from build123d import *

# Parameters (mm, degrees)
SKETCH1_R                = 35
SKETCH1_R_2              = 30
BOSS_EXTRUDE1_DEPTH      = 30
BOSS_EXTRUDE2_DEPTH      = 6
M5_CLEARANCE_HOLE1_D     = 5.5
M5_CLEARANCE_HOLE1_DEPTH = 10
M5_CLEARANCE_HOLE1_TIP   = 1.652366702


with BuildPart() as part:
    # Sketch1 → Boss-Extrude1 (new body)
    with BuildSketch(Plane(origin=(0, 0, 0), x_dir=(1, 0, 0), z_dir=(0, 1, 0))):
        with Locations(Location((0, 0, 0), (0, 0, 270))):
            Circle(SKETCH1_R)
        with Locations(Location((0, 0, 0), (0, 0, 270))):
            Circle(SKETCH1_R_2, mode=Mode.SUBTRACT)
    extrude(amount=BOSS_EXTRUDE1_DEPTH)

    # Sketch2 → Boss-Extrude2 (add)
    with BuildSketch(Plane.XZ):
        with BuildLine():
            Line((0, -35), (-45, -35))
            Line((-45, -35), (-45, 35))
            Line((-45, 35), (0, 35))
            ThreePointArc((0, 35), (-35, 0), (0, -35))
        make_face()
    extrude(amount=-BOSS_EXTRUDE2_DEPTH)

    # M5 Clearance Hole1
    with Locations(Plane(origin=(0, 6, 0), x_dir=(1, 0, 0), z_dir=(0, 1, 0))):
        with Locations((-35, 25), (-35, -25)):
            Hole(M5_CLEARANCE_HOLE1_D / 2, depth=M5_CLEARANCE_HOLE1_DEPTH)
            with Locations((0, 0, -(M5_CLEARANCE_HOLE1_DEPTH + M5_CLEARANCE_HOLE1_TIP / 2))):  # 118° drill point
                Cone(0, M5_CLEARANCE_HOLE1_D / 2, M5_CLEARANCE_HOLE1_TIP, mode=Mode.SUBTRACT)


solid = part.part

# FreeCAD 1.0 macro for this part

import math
import FreeCAD as App
import Part
import Sketcher

doc = App.newDocument("Part")
body = doc.addObject("PartDesign::Body", "Body")

sketch1 = body.newObject("Sketcher::SketchObject", "Sketch")
sketch1.AttachmentSupport = (doc.getObject("XZ_Plane"), [""])
sketch1.MapMode = "FlatFace"
sketch1.addGeometry([
    Part.Circle(App.Vector(0, 0, 0), App.Vector(0, 0, 1), 35),
    Part.Circle(App.Vector(0, 0, 0), App.Vector(0, 0, 1), 30),
], False)
sketch1.addConstraint([
    Sketcher.Constraint("Coincident", 0, 3, -1, 1),
    Sketcher.Constraint("Coincident", 1, 3, -1, 1),
    Sketcher.Constraint("Diameter", 0, 70.0),
    Sketcher.Constraint("Diameter", 1, 60.0),
])
pad1 = body.newObject("PartDesign::Pad", "Pad")
pad1.Profile = sketch1
pad1.Length = 30
pad1.Reversed = True

sketch2 = body.newObject("Sketcher::SketchObject", "Sketch001")
sketch2.AttachmentSupport = (doc.getObject("XZ_Plane"), [""])
sketch2.MapMode = "FlatFace"
sketch2.addGeometry([
    Part.LineSegment(App.Vector(-45, -35, 0), App.Vector(0, -35, 0)),
    Part.ArcOfCircle(Part.Circle(App.Vector(0, 0, 0), App.Vector(0, 0, 1), 35), math.radians(90), math.radians(270)),
    Part.LineSegment(App.Vector(0, 35, 0), App.Vector(-45, 35, 0)),
    Part.LineSegment(App.Vector(-45, 35, 0), App.Vector(-45, -35, 0)),
], False)
sketch2.addConstraint([
    Sketcher.Constraint("Tangent", 0, 2, 1, 2),
    Sketcher.Constraint("Tangent", 1, 1, 2, 1),
    Sketcher.Constraint("Coincident", 2, 2, 3, 1),
    Sketcher.Constraint("Coincident", 3, 2, 0, 1),
    Sketcher.Constraint("Horizontal", 0),
    Sketcher.Constraint("Horizontal", 2),
    Sketcher.Constraint("Vertical", 3),
    Sketcher.Constraint("Coincident", 1, 3, -1, 1),
    Sketcher.Constraint("Radius", 1, 35.0),
    Sketcher.Constraint("DistanceX", 0, 1, 0, 2, 45.0),
])
pad2 = body.newObject("PartDesign::Pad", "Pad001")
pad2.Profile = sketch2
pad2.Length = 6
pad2.Reversed = True

sketch3 = body.newObject("Sketcher::SketchObject", "Sketch002")
sketch3.AttachmentSupport = (doc.getObject("XZ_Plane"), [""])
sketch3.MapMode = "FlatFace"
sketch3.AttachmentOffset = App.Placement(App.Vector(0, 0, -6), App.Rotation())
sketch3.addGeometry([
    Part.Circle(App.Vector(-35, -25, 0), App.Vector(0, 0, 1), 2.8),
    Part.Circle(App.Vector(-35, 25, 0), App.Vector(0, 0, 1), 2.8),
], False)
sketch3.addConstraint([
    Sketcher.Constraint("Equal", 0, 1),
    Sketcher.Constraint("Symmetric", 0, 3, 1, 3, -1),
    Sketcher.Constraint("Diameter", 0, 5.5),
    Sketcher.Constraint("DistanceX", 0, 3, -1, 1, 35.0),
    Sketcher.Constraint("DistanceY", 0, 3, -1, 1, 25.0),
])
doc.recompute()
hole = body.newObject("PartDesign::Hole", "Hole")
hole.Profile = sketch3
hole.ThreadType = "None"
hole.Diameter = 5.5
hole.DepthType = "Dimension"
hole.Depth = 10
hole.DrillPoint = "Angled"
hole.DrillPointAngle = 118
hole.Reversed = True

doc.recompute()
